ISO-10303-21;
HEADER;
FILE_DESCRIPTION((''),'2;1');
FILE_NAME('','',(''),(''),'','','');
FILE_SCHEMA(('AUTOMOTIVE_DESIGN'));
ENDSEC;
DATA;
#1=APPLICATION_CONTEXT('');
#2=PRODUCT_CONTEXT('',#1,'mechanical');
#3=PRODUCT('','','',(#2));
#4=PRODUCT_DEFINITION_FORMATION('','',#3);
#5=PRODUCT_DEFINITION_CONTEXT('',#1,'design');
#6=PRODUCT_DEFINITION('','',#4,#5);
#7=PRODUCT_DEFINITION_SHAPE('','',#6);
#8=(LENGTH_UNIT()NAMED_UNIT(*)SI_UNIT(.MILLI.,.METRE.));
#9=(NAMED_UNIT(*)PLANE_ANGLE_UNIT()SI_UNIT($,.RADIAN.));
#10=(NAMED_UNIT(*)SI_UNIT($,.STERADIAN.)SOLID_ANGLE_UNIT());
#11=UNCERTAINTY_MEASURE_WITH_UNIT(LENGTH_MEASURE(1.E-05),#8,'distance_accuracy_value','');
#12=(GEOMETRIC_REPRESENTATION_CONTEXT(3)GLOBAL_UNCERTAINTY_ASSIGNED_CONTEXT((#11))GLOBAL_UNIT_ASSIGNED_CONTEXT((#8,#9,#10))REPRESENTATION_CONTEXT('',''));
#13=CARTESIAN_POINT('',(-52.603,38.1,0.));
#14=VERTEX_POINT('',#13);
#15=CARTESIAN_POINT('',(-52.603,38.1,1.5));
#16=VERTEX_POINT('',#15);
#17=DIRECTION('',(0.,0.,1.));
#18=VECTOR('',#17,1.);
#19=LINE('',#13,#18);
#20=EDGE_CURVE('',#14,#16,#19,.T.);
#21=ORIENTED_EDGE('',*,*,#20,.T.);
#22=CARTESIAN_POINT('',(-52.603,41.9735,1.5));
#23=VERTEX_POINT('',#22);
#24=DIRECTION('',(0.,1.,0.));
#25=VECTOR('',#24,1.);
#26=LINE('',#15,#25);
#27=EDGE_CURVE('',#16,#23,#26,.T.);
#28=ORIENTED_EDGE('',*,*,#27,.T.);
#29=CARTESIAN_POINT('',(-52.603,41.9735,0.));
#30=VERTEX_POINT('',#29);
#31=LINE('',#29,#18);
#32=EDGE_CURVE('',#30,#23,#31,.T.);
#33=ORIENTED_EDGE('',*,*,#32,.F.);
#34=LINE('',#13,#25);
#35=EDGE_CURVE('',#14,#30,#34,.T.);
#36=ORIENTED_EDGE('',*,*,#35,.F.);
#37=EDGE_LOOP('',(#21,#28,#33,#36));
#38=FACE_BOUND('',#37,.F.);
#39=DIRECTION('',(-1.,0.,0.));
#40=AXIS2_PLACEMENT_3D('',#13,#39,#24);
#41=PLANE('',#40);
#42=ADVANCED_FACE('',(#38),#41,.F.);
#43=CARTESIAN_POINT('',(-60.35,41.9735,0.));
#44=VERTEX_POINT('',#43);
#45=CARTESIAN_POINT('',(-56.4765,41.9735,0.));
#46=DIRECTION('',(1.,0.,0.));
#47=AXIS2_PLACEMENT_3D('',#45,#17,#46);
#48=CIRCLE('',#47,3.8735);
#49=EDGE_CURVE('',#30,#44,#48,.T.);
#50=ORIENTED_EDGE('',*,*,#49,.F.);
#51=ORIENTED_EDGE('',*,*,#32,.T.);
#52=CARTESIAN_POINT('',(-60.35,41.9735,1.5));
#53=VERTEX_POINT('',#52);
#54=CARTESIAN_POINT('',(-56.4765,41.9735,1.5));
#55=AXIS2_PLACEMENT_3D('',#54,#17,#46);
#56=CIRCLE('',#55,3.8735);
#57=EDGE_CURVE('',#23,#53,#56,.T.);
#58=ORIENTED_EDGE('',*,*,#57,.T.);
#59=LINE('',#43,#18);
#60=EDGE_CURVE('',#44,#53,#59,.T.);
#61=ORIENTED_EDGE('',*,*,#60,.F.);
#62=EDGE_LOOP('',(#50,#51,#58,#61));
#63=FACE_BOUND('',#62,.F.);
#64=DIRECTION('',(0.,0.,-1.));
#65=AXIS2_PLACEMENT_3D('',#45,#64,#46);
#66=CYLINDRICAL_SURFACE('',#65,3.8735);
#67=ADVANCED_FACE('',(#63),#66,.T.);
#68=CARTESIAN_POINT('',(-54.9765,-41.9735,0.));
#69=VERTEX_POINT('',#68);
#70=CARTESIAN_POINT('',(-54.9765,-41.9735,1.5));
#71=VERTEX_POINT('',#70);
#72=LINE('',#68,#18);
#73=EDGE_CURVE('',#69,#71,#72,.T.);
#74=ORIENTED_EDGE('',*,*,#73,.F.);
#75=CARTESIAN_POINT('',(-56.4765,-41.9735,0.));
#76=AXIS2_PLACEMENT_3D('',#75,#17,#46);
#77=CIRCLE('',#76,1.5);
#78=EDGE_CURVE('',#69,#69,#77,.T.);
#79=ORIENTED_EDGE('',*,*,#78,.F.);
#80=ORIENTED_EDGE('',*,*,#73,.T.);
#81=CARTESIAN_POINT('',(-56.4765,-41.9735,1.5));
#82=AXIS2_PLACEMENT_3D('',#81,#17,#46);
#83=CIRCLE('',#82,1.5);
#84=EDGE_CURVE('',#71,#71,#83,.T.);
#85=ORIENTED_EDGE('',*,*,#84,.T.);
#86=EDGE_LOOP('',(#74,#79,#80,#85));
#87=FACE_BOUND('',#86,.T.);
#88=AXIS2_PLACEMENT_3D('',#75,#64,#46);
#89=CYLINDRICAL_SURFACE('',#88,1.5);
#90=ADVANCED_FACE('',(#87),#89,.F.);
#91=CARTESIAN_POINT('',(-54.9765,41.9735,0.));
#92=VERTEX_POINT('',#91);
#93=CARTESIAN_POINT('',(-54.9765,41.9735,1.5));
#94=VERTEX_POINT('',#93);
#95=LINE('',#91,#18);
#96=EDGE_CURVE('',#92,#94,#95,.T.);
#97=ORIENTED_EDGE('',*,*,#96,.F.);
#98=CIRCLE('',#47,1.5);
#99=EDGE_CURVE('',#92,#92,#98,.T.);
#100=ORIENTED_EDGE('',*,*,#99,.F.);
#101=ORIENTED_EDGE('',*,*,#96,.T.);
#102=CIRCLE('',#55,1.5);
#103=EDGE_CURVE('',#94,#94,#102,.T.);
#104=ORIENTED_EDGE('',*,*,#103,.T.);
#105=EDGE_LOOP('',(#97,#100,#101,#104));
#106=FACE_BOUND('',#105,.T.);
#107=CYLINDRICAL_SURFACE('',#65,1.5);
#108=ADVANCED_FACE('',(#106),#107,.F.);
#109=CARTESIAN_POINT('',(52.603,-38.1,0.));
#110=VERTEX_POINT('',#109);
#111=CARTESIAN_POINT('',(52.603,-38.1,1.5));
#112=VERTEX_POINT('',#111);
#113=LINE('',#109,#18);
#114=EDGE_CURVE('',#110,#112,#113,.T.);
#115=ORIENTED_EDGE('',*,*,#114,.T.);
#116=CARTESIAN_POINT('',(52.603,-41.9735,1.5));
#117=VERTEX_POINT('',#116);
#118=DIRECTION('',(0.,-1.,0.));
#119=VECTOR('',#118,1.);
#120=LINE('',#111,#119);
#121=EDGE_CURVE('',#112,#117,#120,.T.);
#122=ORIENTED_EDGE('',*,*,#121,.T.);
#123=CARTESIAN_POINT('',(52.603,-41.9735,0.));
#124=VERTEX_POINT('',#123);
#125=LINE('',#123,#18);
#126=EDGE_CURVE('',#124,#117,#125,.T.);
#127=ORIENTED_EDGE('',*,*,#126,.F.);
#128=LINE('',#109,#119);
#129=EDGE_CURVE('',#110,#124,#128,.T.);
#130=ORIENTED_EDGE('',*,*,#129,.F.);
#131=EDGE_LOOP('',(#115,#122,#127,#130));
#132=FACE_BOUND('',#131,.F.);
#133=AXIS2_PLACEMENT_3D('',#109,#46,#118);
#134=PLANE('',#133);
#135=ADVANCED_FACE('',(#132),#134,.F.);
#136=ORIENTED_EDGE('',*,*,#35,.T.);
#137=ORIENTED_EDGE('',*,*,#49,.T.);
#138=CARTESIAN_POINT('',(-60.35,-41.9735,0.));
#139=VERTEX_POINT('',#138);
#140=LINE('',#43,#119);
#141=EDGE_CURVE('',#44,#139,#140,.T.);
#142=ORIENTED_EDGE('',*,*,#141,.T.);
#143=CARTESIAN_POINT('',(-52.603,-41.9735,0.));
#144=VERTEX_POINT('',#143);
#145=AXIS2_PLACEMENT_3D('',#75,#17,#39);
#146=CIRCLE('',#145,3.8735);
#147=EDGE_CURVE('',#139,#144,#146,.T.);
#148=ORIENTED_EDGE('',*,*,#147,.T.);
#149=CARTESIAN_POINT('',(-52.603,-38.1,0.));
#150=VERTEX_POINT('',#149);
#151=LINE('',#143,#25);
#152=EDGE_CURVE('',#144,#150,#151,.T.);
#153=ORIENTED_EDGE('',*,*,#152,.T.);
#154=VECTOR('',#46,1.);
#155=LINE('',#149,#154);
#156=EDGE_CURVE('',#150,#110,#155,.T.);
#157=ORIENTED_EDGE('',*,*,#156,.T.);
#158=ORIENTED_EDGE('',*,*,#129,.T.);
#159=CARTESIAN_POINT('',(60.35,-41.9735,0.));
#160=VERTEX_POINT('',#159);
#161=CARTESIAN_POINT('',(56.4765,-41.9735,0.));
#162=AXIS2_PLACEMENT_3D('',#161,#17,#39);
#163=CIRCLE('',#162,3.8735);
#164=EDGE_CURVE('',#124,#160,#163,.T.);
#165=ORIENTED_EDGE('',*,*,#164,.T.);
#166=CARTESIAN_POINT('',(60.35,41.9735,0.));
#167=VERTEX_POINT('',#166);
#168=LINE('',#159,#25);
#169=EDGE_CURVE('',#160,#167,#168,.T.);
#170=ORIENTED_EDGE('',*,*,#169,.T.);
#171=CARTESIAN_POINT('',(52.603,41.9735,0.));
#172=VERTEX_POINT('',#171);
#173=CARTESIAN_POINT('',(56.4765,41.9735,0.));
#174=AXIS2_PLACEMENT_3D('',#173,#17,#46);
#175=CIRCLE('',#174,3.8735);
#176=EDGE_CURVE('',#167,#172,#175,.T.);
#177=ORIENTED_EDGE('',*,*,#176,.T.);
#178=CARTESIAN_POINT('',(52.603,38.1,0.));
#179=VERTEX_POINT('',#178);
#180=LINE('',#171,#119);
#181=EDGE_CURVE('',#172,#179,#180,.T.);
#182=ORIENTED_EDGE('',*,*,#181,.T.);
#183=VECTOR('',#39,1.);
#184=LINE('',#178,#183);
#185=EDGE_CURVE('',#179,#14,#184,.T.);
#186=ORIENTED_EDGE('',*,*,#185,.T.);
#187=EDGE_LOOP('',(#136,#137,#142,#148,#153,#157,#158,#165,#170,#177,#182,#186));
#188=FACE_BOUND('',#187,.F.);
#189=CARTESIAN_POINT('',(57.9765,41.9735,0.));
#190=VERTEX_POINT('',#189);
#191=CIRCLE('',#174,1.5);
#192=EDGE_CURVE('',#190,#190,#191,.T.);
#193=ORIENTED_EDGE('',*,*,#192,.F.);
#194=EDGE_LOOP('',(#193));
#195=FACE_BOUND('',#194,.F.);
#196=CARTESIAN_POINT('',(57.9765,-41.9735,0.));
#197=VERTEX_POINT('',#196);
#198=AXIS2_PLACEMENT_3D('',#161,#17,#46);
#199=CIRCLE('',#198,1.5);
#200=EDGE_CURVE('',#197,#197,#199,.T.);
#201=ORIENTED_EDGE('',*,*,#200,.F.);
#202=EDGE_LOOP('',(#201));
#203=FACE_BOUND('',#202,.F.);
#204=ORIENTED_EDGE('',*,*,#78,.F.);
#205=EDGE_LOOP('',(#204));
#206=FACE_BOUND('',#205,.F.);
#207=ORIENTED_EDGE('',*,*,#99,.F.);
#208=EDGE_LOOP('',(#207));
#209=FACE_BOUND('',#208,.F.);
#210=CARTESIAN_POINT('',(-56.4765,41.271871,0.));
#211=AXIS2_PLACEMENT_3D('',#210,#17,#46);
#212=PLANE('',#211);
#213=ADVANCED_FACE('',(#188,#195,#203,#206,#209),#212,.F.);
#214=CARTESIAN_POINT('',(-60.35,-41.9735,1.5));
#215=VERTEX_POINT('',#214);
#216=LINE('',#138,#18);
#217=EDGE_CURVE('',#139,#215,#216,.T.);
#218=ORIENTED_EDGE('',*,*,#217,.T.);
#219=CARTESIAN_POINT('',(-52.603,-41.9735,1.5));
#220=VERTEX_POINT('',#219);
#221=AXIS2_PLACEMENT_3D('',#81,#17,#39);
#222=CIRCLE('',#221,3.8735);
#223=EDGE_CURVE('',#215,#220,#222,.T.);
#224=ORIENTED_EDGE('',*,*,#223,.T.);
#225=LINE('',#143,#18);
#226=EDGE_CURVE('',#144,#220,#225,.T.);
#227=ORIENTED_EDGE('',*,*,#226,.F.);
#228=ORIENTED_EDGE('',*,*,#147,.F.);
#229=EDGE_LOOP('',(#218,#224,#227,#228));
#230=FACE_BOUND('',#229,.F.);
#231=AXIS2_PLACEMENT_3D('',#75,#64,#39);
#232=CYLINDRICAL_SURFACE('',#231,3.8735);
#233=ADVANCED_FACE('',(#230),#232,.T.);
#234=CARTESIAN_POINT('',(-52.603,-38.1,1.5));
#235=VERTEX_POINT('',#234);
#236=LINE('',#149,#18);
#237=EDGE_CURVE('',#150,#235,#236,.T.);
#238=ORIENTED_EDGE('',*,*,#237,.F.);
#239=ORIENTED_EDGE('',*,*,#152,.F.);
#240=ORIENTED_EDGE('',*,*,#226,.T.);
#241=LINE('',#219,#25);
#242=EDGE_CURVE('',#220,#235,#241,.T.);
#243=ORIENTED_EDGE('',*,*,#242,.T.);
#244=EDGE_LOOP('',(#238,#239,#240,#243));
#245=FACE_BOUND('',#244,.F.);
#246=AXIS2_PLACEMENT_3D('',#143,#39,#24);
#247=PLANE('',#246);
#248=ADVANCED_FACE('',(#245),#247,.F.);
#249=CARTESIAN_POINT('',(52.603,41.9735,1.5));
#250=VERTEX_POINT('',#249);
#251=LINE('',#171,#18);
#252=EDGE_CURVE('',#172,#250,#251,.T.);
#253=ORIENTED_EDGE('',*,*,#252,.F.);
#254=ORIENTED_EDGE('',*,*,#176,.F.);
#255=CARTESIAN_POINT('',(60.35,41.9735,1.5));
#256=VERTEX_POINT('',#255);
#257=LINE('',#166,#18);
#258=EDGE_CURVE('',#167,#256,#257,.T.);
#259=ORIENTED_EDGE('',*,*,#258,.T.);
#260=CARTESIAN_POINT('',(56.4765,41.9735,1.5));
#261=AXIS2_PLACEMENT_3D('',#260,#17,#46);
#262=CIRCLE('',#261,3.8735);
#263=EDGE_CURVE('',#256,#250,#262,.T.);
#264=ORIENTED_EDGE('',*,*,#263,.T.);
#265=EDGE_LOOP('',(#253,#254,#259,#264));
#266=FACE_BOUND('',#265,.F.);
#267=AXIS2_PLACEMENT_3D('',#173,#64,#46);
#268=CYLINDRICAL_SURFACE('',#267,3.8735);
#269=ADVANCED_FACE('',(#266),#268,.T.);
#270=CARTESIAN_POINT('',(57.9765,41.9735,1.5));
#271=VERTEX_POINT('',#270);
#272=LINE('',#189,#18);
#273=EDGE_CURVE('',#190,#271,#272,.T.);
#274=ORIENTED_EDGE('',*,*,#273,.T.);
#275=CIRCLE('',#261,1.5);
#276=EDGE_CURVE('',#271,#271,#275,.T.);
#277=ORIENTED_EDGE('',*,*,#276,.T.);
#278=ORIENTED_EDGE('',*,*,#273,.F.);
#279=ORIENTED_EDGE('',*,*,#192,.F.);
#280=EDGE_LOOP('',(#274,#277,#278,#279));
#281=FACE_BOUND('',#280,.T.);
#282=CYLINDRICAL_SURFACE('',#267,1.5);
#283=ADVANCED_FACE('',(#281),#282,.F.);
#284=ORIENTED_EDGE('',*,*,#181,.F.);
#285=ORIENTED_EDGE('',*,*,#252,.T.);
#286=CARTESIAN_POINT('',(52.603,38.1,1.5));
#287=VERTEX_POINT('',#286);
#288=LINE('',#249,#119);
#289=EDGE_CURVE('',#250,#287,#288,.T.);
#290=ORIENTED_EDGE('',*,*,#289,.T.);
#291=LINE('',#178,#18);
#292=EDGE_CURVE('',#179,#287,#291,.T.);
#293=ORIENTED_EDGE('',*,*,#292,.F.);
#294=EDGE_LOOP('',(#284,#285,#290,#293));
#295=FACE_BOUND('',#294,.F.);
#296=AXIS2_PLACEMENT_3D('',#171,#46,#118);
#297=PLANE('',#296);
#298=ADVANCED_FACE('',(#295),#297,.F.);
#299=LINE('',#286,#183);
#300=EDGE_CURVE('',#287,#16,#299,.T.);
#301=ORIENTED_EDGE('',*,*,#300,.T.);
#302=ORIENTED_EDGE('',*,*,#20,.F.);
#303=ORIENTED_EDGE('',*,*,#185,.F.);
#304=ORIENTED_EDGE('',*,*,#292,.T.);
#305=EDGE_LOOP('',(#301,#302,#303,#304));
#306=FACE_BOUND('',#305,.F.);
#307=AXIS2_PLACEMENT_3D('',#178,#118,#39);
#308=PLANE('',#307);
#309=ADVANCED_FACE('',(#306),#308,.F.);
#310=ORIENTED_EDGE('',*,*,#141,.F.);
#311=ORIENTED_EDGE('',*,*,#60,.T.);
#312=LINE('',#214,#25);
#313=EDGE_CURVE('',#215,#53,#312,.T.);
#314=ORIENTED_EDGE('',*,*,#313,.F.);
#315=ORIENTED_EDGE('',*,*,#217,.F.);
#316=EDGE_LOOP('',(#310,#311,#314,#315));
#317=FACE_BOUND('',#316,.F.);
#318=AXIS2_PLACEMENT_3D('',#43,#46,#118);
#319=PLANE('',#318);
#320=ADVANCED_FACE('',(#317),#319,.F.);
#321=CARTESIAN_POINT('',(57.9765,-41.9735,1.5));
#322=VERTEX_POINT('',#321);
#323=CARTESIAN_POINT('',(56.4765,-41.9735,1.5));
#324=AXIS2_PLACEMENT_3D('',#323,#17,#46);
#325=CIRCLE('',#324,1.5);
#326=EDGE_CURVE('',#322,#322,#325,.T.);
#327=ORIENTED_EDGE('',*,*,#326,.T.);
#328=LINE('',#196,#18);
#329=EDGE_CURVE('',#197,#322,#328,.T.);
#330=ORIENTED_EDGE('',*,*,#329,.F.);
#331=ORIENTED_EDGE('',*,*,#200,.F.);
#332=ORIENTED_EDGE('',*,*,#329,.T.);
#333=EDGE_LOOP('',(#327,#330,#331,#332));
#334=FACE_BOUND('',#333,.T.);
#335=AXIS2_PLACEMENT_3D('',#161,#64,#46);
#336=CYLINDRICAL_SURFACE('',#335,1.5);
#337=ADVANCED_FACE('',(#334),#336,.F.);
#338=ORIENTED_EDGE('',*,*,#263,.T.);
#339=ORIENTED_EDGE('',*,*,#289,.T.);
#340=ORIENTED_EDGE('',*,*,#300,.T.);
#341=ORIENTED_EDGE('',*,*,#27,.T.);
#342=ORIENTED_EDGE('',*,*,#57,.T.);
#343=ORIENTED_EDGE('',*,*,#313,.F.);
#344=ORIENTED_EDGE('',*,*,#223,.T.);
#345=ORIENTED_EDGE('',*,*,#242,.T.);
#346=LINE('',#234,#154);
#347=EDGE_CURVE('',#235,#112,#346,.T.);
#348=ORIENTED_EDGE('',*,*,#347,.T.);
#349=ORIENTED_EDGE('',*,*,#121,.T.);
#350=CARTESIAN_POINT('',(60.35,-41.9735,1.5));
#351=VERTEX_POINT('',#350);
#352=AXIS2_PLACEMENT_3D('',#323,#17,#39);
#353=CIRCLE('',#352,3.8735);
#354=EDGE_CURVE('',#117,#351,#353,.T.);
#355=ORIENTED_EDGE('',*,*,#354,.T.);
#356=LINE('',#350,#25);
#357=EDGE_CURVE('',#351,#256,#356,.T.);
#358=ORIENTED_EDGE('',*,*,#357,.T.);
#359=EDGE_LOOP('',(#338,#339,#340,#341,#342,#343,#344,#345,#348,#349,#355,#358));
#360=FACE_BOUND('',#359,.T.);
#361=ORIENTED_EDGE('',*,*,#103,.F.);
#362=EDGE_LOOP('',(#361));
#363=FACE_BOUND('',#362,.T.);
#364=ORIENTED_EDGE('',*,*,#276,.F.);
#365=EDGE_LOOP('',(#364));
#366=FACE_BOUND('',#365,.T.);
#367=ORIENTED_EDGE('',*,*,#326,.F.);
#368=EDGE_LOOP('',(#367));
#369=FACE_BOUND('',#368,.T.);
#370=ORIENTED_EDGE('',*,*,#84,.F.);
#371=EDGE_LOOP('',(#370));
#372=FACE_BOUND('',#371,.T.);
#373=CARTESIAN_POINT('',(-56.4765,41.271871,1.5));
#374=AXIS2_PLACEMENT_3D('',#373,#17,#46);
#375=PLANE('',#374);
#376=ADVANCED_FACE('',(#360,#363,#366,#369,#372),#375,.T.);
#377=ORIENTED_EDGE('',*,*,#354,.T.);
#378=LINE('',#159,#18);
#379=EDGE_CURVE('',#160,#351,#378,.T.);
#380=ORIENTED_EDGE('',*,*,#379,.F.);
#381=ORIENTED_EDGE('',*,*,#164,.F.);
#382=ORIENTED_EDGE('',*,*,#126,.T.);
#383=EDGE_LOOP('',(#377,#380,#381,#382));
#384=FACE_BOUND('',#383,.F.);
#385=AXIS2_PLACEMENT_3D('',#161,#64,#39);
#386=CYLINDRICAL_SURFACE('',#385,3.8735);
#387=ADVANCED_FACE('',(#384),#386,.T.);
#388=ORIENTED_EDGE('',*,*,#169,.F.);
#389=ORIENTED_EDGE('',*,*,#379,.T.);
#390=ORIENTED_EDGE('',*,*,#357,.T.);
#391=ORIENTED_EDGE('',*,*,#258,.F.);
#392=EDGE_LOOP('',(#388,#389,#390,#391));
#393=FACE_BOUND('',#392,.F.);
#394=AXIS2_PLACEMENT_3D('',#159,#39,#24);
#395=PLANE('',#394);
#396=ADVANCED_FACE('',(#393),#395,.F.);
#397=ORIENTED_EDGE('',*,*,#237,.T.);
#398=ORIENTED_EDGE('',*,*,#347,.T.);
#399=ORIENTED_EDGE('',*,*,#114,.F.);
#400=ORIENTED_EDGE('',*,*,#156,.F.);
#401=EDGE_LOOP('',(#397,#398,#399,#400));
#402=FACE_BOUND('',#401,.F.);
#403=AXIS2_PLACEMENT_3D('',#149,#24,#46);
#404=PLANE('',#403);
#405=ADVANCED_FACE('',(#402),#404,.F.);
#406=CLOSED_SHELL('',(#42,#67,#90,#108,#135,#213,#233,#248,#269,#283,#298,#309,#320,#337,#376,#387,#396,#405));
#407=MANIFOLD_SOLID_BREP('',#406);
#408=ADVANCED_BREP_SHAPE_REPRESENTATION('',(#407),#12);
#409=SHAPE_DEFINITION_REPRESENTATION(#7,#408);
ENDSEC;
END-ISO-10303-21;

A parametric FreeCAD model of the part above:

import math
import FreeCAD as App
import Part
import Sketcher
from FreeCAD import Vector

doc = App.newDocument("Part")
body = doc.addObject("PartDesign::Body", "Body")

sketch1 = body.newObject("Sketcher::SketchObject", "Sketch")
sketch1.AttachmentSupport = (doc.getObject("XY_Plane"), [""])
sketch1.MapMode = "FlatFace"
sketch1.addGeometry([
    Part.LineSegment(Vector(-52.603, -41.9735, 0), Vector(-52.603, -38.1, 0)),
    Part.LineSegment(Vector(-52.603, -38.1, 0), Vector(52.603, -38.1, 0)),
    Part.LineSegment(Vector(52.603, -38.1, 0), Vector(52.603, -41.9735, 0)),
    Part.ArcOfCircle(Part.Circle(Vector(56.4765, -41.9735, 0), Vector(0, 0, 1), 3.8735), math.radians(180), math.radians(360)),
    Part.LineSegment(Vector(60.35, -41.9735, 0), Vector(60.35, 41.9735, 0)),
    Part.ArcOfCircle(Part.Circle(Vector(56.4765, 41.9735, 0), Vector(0, 0, 1), 3.8735), math.radians(0), math.radians(180)),
    Part.LineSegment(Vector(52.603, 41.9735, 0), Vector(52.603, 38.1, 0)),
    Part.LineSegment(Vector(52.603, 38.1, 0), Vector(-60.35, 38.1, 0)),
    Part.LineSegment(Vector(-60.35, 38.1, 0), Vector(-60.35, -41.9735, 0)),
    Part.ArcOfCircle(Part.Circle(Vector(-56.4765, -41.9735, 0), Vector(0, 0, 1), 3.8735), math.radians(180), math.radians(360)),
    Part.Circle(Vector(-56.4765, -41.9735, 0), Vector(0, 0, 1), 1.5),
    Part.Circle(Vector(56.4765, -41.9735, 0), Vector(0, 0, 1), 1.5),
    Part.Circle(Vector(56.4765, 41.9735, 0), Vector(0, 0, 1), 1.5),
], False)
sketch1.addConstraint([
    Sketcher.Constraint("Coincident", 0, 2, 1, 1),
    Sketcher.Constraint("Coincident", 1, 2, 2, 1),
    Sketcher.Constraint("Tangent", 2, 2, 3, 1),
    Sketcher.Constraint("Tangent", 3, 2, 4, 1),
    Sketcher.Constraint("Tangent", 4, 2, 5, 1),
    Sketcher.Constraint("Tangent", 5, 2, 6, 1),
    Sketcher.Constraint("Coincident", 6, 2, 7, 1),
    Sketcher.Constraint("Coincident", 7, 2, 8, 1),
    Sketcher.Constraint("Tangent", 8, 2, 9, 1),
    Sketcher.Constraint("Tangent", 9, 2, 0, 1),
    Sketcher.Constraint("Vertical", 0),
    Sketcher.Constraint("Horizontal", 1),
    Sketcher.Constraint("Vertical", 2),
    Sketcher.Constraint("Vertical", 4),
    Sketcher.Constraint("Vertical", 6),
    Sketcher.Constraint("Horizontal", 7),
    Sketcher.Constraint("Vertical", 8),
    Sketcher.Constraint("Coincident", 10, 3, 9, 3),
    Sketcher.Constraint("Coincident", 11, 3, 3, 3),
    Sketcher.Constraint("Coincident", 12, 3, 5, 3),
    Sketcher.Constraint("Equal", 3, 5),
    Sketcher.Constraint("Equal", 5, 9),
    Sketcher.Constraint("Equal", 10, 11),
    Sketcher.Constraint("Equal", 11, 12),
    Sketcher.Constraint("Symmetric", 5, 3, 9, 3, -1, 1),
    Sketcher.Constraint("Horizontal", 3, 3, 9, 3),
    Sketcher.Constraint("Equal", 2, 6),
    Sketcher.Constraint("Diameter", 10, 3.0),
    Sketcher.Constraint("DistanceY", 0, 2, -1, 1, 38.1),
    Sketcher.Constraint("Radius", 3, 3.8735),
    Sketcher.Constraint("DistanceX", 1, 1, 1, 2, 105.206),
    Sketcher.Constraint("DistanceY", 4, 1, 4, 2, 83.947),
])
pad1 = body.newObject("PartDesign::Pad", "Pad")
pad1.Profile = sketch1
pad1.Length = 1.5

sketch2 = body.newObject("Sketcher::SketchObject", "Sketch001")
sketch2.AttachmentSupport = (doc.getObject("XY_Plane"), [""])
sketch2.MapMode = "FlatFace"
sketch2.addGeometry([
    Part.LineSegment(Vector(-60.35, 41.9735, 0), Vector(-60.35, 38.1, 0)),
    Part.LineSegment(Vector(-60.35, 38.1, 0), Vector(-52.603, 38.1, 0)),
    Part.LineSegment(Vector(-52.603, 38.1, 0), Vector(-52.603, 41.9735, 0)),
    Part.ArcOfCircle(Part.Circle(Vector(-56.4765, 41.9735, 0), Vector(0, 0, 1), 3.8735), math.radians(0), math.radians(180)),
    Part.Circle(Vector(-56.4765, 41.9735, 0), Vector(0, 0, 1), 1.5),
], False)
sketch2.addConstraint([
    Sketcher.Constraint("Coincident", 0, 2, 1, 1),
    Sketcher.Constraint("Coincident", 1, 2, 2, 1),
    Sketcher.Constraint("Tangent", 2, 2, 3, 1),
    Sketcher.Constraint("Tangent", 3, 2, 0, 1),
    Sketcher.Constraint("Vertical", 0),
    Sketcher.Constraint("Horizontal", 1),
    Sketcher.Constraint("Vertical", 2),
    Sketcher.Constraint("Coincident", 4, 3, 3, 3),
    Sketcher.Constraint("Diameter", 4, 3.0),
    Sketcher.Constraint("DistanceY", -1, 1, 0, 2, 38.1),
    Sketcher.Constraint("Radius", 3, 3.8735),
    Sketcher.Constraint("DistanceX", 0, 2, -1, 1, 60.35),
    Sketcher.Constraint("DistanceY", 0, 2, 0, 1, 3.8735),
])
pad2 = body.newObject("PartDesign::Pad", "Pad001")
pad2.Profile = sketch2
pad2.Length = 1.5

doc.recompute()
